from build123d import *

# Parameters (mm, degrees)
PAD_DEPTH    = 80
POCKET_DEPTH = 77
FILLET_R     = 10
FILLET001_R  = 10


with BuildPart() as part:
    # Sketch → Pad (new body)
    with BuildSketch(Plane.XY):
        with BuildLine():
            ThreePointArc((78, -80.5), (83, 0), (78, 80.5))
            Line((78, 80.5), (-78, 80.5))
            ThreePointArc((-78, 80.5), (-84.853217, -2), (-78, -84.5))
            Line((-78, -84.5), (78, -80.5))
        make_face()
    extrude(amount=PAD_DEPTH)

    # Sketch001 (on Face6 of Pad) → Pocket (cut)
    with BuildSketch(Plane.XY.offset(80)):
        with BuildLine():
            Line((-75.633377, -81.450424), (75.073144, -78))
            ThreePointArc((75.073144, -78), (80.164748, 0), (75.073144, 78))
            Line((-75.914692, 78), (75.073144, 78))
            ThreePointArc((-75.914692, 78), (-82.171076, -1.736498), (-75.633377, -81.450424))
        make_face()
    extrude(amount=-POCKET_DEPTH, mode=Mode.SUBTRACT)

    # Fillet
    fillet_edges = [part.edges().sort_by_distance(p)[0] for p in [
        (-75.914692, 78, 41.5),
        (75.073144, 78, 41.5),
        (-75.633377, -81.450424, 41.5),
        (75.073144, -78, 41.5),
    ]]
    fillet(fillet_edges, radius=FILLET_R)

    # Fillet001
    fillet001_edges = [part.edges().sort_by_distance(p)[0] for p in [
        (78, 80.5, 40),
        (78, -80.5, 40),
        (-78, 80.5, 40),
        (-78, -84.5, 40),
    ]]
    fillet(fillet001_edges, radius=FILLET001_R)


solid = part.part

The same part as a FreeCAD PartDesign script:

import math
import FreeCAD as App
import Part
import Sketcher


def edges_at(feature, points):
    """Names of the edges that pass closest to the given points."""
    edges = feature.Shape.Edges
    near = lambda p: min(range(len(edges)), key=lambda i: edges[i].distToShape(Part.Vertex(*p))[0])
    return sorted({f"Edge{near(p) + 1}" for p in points})

doc = App.newDocument("Part")
body = doc.addObject("PartDesign::Body", "Body")

# Sketch on XY plane
sketch1 = body.newObject("Sketcher::SketchObject", "Sketch")
sketch1.AttachmentSupport = (doc.getObject("XY_Plane"), [""])
sketch1.MapMode = "FlatFace"
sketch1.addGeometry(Part.ArcOfCircle(Part.Circle(App.Vector(-567.525, 0, 0), App.Vector(0, 0, 1), 650.525), math.radians(-7.108356), math.radians(7.108356)), False)
sketch1.addGeometry(Part.LineSegment(App.Vector(78, 80.5, 0), App.Vector(-78, 80.5, 0)), False)
sketch1.addGeometry(Part.ArcOfCircle(Part.Circle(App.Vector(415.146753, -2, 0), App.Vector(0, 0, 1), 499.99997), math.radians(170.502765), math.radians(189.497235)), False)
sketch1.addGeometry(Part.LineSegment(App.Vector(-78, -84.5, 0), App.Vector(78, -80.5, 0)), False)
sketch1.addConstraint(Sketcher.Constraint("Coincident", 0, 2, 1, 1))
sketch1.addConstraint(Sketcher.Constraint("Coincident", 1, 2, 2, 1))
sketch1.addConstraint(Sketcher.Constraint("Coincident", 2, 2, 3, 1))
sketch1.addConstraint(Sketcher.Constraint("Coincident", 3, 2, 0, 1))
sketch1.addConstraint(Sketcher.Constraint("Horizontal", 1))
sketch1.addConstraint(Sketcher.Constraint("Symmetric", 1, 2, 3, 2, -1, 1))
sketch1.addConstraint(Sketcher.Constraint("PointOnObject", 0, 3, -1))
sketch1.addConstraint(Sketcher.Constraint("Vertical", 1, 2, 2, 2))
sketch1.addConstraint(Sketcher.Constraint("DistanceX", 1, 2, 1, 1, 156.0))
sketch1.addConstraint(Sketcher.Constraint("DistanceY", 2, 3, -1, 1, 2.0))
sketch1.addConstraint(Sketcher.Constraint("Radius", 0, 650.525))
sketch1.addConstraint(Sketcher.Constraint("DistanceY", 2, 2, 1, 2, 165.0))
sketch1.addConstraint(Sketcher.Constraint("Radius", 2, 499.99997))
pad1 = body.newObject("PartDesign::Pad", "Pad")
pad1.Profile = sketch1
pad1.Length = 80

# Sketch on XY plane
sketch2 = body.newObject("Sketcher::SketchObject", "Sketch001")
sketch2.AttachmentSupport = (doc.getObject("XY_Plane"), [""])
sketch2.MapMode = "FlatFace"
sketch2.AttachmentOffset = App.Placement(App.Vector(0, 0, 80), App.Rotation())
sketch2.addGeometry(Part.LineSegment(App.Vector(-75.633377, -81.450424, 0), App.Vector(75.073144, -78, 0)), False)
sketch2.addGeometry(Part.ArcOfCircle(Part.Circle(App.Vector(-519.835216, 0, 0), App.Vector(0, 0, 1), 599.999964), math.radians(-7.469593), math.radians(7.469593)), False)
sketch2.addGeometry(Part.LineSegment(App.Vector(75.073144, 78, 0), App.Vector(-75.914692, 78, 0)), False)
sketch2.addGeometry(Part.ArcOfCircle(Part.Circle(App.Vector(417.828148, -0.85436, 0), App.Vector(0, 0, 1), 500.000002), math.radians(170.926073), math.radians(189.276098)), False)
sketch2.addConstraint(Sketcher.Constraint("Coincident", 0, 2, 1, 1))
sketch2.addConstraint(Sketcher.Constraint("Coincident", 1, 2, 2, 1))
sketch2.addConstraint(Sketcher.Constraint("Coincident", 2, 2, 3, 1))
sketch2.addConstraint(Sketcher.Constraint("Coincident", 3, 2, 0, 1))
sketch2.addConstraint(Sketcher.Constraint("Horizontal", 2))
sketch2.addConstraint(Sketcher.Constraint("PointOnObject", 1, 3, -1))
sketch2.addConstraint(Sketcher.Constraint("Vertical", 0, 2, 1, 2))
sketch2.addConstraint(Sketcher.Constraint("Radius", 3, 500.000002))
sketch2.addConstraint(Sketcher.Constraint("DistanceY", 0, 2, -1, 1, 78.0))
sketch2.addConstraint(Sketcher.Constraint("Radius", 1, 599.999964))
sketch2.addConstraint(Sketcher.Constraint("DistanceX", 2, 2, 2, 1, 150.987836))
sketch2.addConstraint(Sketcher.Constraint("DistanceY", 3, 3, -1, 1, 0.85436))
sketch2.addConstraint(Sketcher.Constraint("DistanceX", 3, 2, 0, 2, 150.706521))
sketch2.addConstraint(Sketcher.Constraint("DistanceX", 1, 3, -1, 1, 519.835216))
pocket1 = body.newObject("PartDesign::Pocket", "Pocket")
pocket1.Profile = sketch2
pocket1.Length = 77
doc.recompute()

fillet = body.newObject("PartDesign::Fillet", "Fillet")
fillet.Base = (pocket1, edges_at(pocket1, [
    (-75.915, 78, 41.5),
    (75.073, 78, 41.5),
    (-75.633, -81.45, 41.5),
    (75.073, -78, 41.5),
]))
fillet.Radius = 10
doc.recompute()

fillet2 = body.newObject("PartDesign::Fillet", "Fillet001")
fillet2.Base = (fillet, edges_at(fillet, [
    (78, 80.5, 40),
    (78, -80.5, 40),
    (-78, 80.5, 40),
    (-78, -84.5, 40),
]))
fillet2.Radius = 10

doc.recompute()
